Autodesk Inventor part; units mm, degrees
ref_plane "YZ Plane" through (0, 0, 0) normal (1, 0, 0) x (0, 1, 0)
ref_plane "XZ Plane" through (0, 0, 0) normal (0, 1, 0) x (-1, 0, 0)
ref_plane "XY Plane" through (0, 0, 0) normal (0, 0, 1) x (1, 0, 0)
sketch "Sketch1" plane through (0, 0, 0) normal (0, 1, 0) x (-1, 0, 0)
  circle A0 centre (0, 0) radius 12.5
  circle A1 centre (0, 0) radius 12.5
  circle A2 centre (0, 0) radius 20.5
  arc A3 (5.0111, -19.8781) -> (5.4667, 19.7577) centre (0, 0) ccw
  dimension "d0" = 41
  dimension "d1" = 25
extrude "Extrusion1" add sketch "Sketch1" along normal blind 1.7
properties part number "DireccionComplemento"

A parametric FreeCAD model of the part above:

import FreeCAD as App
import Part
import Sketcher

V = App.Vector
Q = App.Units.Quantity

doc = App.newDocument("Part")
body = doc.addObject("PartDesign::Body", "Body")

sketch1 = body.newObject("Sketcher::SketchObject", "Sketch")
sketch1.AttachmentSupport = (doc.getObject("XZ_Plane"), [""])
sketch1.MapMode = "FlatFace"
sketch1.addGeometry([
    Part.Circle(V(0, 0, 0), V(0, 0, 1), 20.5),
    Part.Circle(V(0, 0, 0), V(0, 0, 1), 12.5),
], False)
sketch1.addConstraint([
    Sketcher.Constraint("Coincident", 0, 3, -1, 1),
    Sketcher.Constraint("Coincident", 1, 3, -1, 1),
    Sketcher.Constraint("Diameter", 0, Q("41 mm")),
    Sketcher.Constraint("Diameter", 1, Q("25 mm")),
])
pad1 = body.newObject("PartDesign::Pad", "Pad")
pad1.Profile = sketch1
pad1.Length = 1.7
pad1.Reversed = True

doc.recompute()
